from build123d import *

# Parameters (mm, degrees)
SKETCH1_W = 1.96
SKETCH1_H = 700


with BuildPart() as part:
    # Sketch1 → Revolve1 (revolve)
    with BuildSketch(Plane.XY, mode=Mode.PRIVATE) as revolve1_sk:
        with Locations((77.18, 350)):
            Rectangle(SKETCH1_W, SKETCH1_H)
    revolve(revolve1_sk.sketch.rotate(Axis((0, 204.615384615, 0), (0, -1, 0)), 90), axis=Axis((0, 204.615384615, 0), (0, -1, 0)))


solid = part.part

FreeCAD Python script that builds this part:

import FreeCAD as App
import Part
import Sketcher
from FreeCAD import Vector


def add_polygon(sketch, points):
    """Adds a closed chain of lines whose ends are joined by coincident constraints."""
    first, n = sketch.GeometryCount, len(points)
    for a, b in zip(points, points[1:] + points[:1]):
        sketch.addGeometry(Part.LineSegment(App.Vector(*a, 0), App.Vector(*b, 0)), False)
    for i in range(n):
        sketch.addConstraint(Sketcher.Constraint("Coincident", first + i, 2, first + (i + 1) % n, 1))

doc = App.newDocument("Part")
body = doc.addObject("PartDesign::Body", "Body")

sketch1 = body.newObject("Sketcher::SketchObject", "Sketch")
sketch1.AttachmentSupport = (doc.getObject("XY_Plane"), [""])
sketch1.MapMode = "FlatFace"
add_polygon(sketch1, [(76.2, 700), (76.2, 0), (78.16, 0), (78.16, 700)])
sketch1.addConstraint([
    Sketcher.Constraint("Vertical", 0),
    Sketcher.Constraint("Horizontal", 1),
    Sketcher.Constraint("Vertical", 2),
    Sketcher.Constraint("Horizontal", 3),
    Sketcher.Constraint("PointOnObject", 0, 2, -1),
    Sketcher.Constraint("DistanceY", 0, 2, 0, 1, 700.0),
    Sketcher.Constraint("DistanceX", 1, 1, 1, 2, 1.96),
    Sketcher.Constraint("DistanceX", -1, 1, 0, 2, 76.2),
])
revolution = body.newObject("PartDesign::Revolution", "Revolution")
revolution.Profile = sketch1
revolution.ReferenceAxis = (sketch1, ["V_Axis"])
revolution.Angle = 360

doc.recompute()
